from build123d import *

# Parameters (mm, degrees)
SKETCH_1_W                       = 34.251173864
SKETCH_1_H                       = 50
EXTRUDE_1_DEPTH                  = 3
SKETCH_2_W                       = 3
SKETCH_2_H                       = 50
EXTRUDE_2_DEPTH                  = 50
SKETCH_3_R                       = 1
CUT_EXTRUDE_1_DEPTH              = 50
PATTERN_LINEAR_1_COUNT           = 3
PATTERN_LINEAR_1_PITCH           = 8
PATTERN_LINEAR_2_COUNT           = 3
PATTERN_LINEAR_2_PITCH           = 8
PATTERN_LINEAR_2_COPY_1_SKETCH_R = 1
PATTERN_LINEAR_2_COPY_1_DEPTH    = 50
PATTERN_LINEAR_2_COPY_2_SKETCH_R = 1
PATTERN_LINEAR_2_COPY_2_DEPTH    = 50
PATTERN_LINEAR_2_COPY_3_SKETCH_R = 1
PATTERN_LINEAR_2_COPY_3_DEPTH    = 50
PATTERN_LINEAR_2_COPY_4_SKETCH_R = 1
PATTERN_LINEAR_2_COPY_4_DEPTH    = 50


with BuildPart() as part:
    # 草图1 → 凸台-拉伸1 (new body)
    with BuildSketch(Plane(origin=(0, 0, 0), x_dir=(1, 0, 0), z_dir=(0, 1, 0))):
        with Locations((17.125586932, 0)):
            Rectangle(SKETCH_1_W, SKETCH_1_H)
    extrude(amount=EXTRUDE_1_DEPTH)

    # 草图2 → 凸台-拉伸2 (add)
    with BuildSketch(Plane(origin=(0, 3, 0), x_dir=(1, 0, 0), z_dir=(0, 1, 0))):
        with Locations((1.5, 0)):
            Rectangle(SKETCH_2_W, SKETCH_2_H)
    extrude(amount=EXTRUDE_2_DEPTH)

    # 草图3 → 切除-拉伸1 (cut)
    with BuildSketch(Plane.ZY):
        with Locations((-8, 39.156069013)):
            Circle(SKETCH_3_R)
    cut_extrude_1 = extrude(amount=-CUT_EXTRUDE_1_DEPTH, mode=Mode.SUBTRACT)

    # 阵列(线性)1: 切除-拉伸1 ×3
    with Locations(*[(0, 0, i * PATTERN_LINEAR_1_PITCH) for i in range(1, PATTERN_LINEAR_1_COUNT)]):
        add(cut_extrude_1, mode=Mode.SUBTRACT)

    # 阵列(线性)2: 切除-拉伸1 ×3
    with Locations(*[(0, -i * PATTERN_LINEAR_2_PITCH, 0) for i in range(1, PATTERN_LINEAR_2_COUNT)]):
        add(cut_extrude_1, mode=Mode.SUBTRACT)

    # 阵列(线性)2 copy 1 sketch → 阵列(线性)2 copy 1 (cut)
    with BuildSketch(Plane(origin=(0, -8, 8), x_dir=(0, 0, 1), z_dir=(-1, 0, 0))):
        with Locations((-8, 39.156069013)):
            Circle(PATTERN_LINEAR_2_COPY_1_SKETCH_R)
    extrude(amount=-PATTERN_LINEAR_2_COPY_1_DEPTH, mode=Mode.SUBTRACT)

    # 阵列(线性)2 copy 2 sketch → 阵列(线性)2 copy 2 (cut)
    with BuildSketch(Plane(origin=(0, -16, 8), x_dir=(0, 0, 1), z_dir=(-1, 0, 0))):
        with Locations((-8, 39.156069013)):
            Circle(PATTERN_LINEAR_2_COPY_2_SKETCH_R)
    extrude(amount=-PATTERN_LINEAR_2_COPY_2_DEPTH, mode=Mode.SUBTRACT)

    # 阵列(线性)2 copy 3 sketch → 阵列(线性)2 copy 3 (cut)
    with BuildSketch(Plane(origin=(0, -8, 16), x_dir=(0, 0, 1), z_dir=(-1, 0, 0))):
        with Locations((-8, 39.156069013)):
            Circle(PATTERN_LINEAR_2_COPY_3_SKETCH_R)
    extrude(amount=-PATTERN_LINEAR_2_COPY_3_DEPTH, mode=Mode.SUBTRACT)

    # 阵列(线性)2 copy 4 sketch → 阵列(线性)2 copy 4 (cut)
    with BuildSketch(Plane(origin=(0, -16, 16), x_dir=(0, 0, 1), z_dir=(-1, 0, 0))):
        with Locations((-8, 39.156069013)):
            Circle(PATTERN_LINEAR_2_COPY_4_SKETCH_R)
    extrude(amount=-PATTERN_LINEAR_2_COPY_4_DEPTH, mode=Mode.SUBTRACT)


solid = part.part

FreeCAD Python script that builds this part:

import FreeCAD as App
import Part
import Sketcher

V = App.Vector
Q = App.Units.Quantity

doc = App.newDocument("Part")
body = doc.addObject("PartDesign::Body", "Body")

# Sketch on XZ plane
sketch1 = body.newObject("Sketcher::SketchObject", "Sketch")
sketch1.AttachmentSupport = (doc.getObject("XZ_Plane"), [""])
sketch1.MapMode = "FlatFace"
sketch1.addGeometry([
    Part.LineSegment(V(0, -25, 0), V(0, 25, 0)),
    Part.LineSegment(V(0, 25, 0), V(34, 25, 0)),
    Part.LineSegment(V(34, 25, 0), V(34, -25, 0)),
    Part.LineSegment(V(34, -25, 0), V(0, -25, 0)),
], False)
sketch1.addConstraint([
    Sketcher.Constraint("Coincident", 0, 2, 1, 1),
    Sketcher.Constraint("Coincident", 1, 2, 2, 1),
    Sketcher.Constraint("Coincident", 2, 2, 3, 1),
    Sketcher.Constraint("Coincident", 3, 2, 0, 1),
    Sketcher.Constraint("Vertical", 0),
    Sketcher.Constraint("Horizontal", 1),
    Sketcher.Constraint("Vertical", 2),
    Sketcher.Constraint("Horizontal", 3),
    Sketcher.Constraint("Symmetric", 0, 2, 3, 2, -1, 1),
    Sketcher.Constraint("DistanceY", 0, 1, 0, 2, Q("50 mm")),
    Sketcher.Constraint("DistanceX", 1, 1, 1, 2, Q("34.251174 mm")),
])
pad1 = body.newObject("PartDesign::Pad", "Pad")
pad1.Profile = sketch1
pad1.Length = 3
pad1.Reversed = True

# Sketch on XZ plane
sketch2 = body.newObject("Sketcher::SketchObject", "Sketch001")
sketch2.AttachmentSupport = (doc.getObject("XZ_Plane"), [""])
sketch2.MapMode = "FlatFace"
sketch2.AttachmentOffset = App.Placement(V(0, 0, -3), App.Rotation())
sketch2.addGeometry([
    Part.LineSegment(V(0, -25, 0), V(0, 25, 0)),
    Part.LineSegment(V(0, 25, 0), V(3, 25, 0)),
    Part.LineSegment(V(3, 25, 0), V(3, -25, 0)),
    Part.LineSegment(V(3, -25, 0), V(0, -25, 0)),
], False)
sketch2.addConstraint([
    Sketcher.Constraint("Coincident", 0, 2, 1, 1),
    Sketcher.Constraint("Coincident", 1, 2, 2, 1),
    Sketcher.Constraint("Coincident", 2, 2, 3, 1),
    Sketcher.Constraint("Coincident", 3, 2, 0, 1),
    Sketcher.Constraint("Vertical", 0),
    Sketcher.Constraint("Horizontal", 1),
    Sketcher.Constraint("Vertical", 2),
    Sketcher.Constraint("Horizontal", 3),
    Sketcher.Constraint("Symmetric", 0, 2, 3, 2, -1, 1),
    Sketcher.Constraint("DistanceX", 1, 1, 1, 2, Q("3 mm")),
    Sketcher.Constraint("DistanceY", 0, 1, 0, 2, Q("50 mm")),
])
pad2 = body.newObject("PartDesign::Pad", "Pad001")
pad2.Profile = sketch2
pad2.Length = 50
pad2.Reversed = True

# Sketch on YZ plane
sketch3 = body.newObject("Sketcher::SketchObject", "Sketch002")
sketch3.AttachmentSupport = (doc.getObject("YZ_Plane"), [""])
sketch3.MapMode = "FlatFace"
sketch3.addGeometry(Part.Circle(V(39.2, -8, 0), V(0, 0, 1), 1), False)
sketch3.addConstraint([
    Sketcher.Constraint("Diameter", 0, Q("2 mm")),
    Sketcher.Constraint("DistanceY", 0, 3, -1, 1, Q("8 mm")),
    Sketcher.Constraint("DistanceX", -1, 1, 0, 3, Q("39.156069 mm")),
])
pocket1 = body.newObject("PartDesign::Pocket", "Pocket")
pocket1.Profile = sketch3
pocket1.Length = 50
pocket1.Reversed = True
doc.recompute()

linearpattern = body.newObject("PartDesign::LinearPattern", "LinearPattern")
linearpattern.Originals = [pocket1]
linearpattern.Direction = (doc.getObject("Z_Axis"), [""])
linearpattern.Mode = "offset"
linearpattern.Offset = 8
linearpattern.Occurrences = 3
body.Tip = linearpattern
doc.recompute()

linearpattern2 = body.newObject("PartDesign::LinearPattern", "LinearPattern001")
linearpattern2.Originals = [pocket1]
linearpattern2.Direction = (doc.getObject("Y_Axis"), [""])
linearpattern2.Mode = "offset"
linearpattern2.Offset = 8
linearpattern2.Occurrences = 3
linearpattern2.Reversed = True
body.Tip = linearpattern2

# Sketch on YZ plane
sketch4 = body.newObject("Sketcher::SketchObject", "Sketch003")
sketch4.AttachmentSupport = (doc.getObject("YZ_Plane"), [""])
sketch4.MapMode = "FlatFace"
sketch4.addGeometry(Part.Circle(V(31.2, 0, 0), V(0, 0, 1), 1), False)
sketch4.addConstraint([
    Sketcher.Constraint("PointOnObject", 0, 3, -1),
    Sketcher.Constraint("Diameter", 0, Q("2 mm")),
    Sketcher.Constraint("DistanceX", -1, 1, 0, 3, Q("31.156069 mm")),
])
pocket2 = body.newObject("PartDesign::Pocket", "Pocket001")
pocket2.Profile = sketch4
pocket2.Length = 50
pocket2.Reversed = True

# Sketch on YZ plane
sketch5 = body.newObject("Sketcher::SketchObject", "Sketch004")
sketch5.AttachmentSupport = (doc.getObject("YZ_Plane"), [""])
sketch5.MapMode = "FlatFace"
sketch5.addGeometry(Part.Circle(V(23.2, 0, 0), V(0, 0, 1), 1), False)
sketch5.addConstraint([
    Sketcher.Constraint("PointOnObject", 0, 3, -1),
    Sketcher.Constraint("Diameter", 0, Q("2 mm")),
    Sketcher.Constraint("DistanceX", -1, 1, 0, 3, Q("23.156069 mm")),
])
pocket3 = body.newObject("PartDesign::Pocket", "Pocket002")
pocket3.Profile = sketch5
pocket3.Length = 50
pocket3.Reversed = True

# Sketch on YZ plane
sketch6 = body.newObject("Sketcher::SketchObject", "Sketch005")
sketch6.AttachmentSupport = (doc.getObject("YZ_Plane"), [""])
sketch6.MapMode = "FlatFace"
sketch6.addGeometry(Part.Circle(V(31.2, 8, 0), V(0, 0, 1), 1), False)
sketch6.addConstraint([
    Sketcher.Constraint("Diameter", 0, Q("2 mm")),
    Sketcher.Constraint("DistanceY", -1, 1, 0, 3, Q("8 mm")),
    Sketcher.Constraint("DistanceX", -1, 1, 0, 3, Q("31.156069 mm")),
])
pocket4 = body.newObject("PartDesign::Pocket", "Pocket003")
pocket4.Profile = sketch6
pocket4.Length = 50
pocket4.Reversed = True

# Sketch on YZ plane
sketch7 = body.newObject("Sketcher::SketchObject", "Sketch006")
sketch7.AttachmentSupport = (doc.getObject("YZ_Plane"), [""])
sketch7.MapMode = "FlatFace"
sketch7.addGeometry(Part.Circle(V(23.2, 8, 0), V(0, 0, 1), 1), False)
sketch7.addConstraint([
    Sketcher.Constraint("Diameter", 0, Q("2 mm")),
    Sketcher.Constraint("DistanceY", -1, 1, 0, 3, Q("8 mm")),
    Sketcher.Constraint("DistanceX", -1, 1, 0, 3, Q("23.156069 mm")),
])
pocket5 = body.newObject("PartDesign::Pocket", "Pocket004")
pocket5.Profile = sketch7
pocket5.Length = 50
pocket5.Reversed = True

doc.recompute()
